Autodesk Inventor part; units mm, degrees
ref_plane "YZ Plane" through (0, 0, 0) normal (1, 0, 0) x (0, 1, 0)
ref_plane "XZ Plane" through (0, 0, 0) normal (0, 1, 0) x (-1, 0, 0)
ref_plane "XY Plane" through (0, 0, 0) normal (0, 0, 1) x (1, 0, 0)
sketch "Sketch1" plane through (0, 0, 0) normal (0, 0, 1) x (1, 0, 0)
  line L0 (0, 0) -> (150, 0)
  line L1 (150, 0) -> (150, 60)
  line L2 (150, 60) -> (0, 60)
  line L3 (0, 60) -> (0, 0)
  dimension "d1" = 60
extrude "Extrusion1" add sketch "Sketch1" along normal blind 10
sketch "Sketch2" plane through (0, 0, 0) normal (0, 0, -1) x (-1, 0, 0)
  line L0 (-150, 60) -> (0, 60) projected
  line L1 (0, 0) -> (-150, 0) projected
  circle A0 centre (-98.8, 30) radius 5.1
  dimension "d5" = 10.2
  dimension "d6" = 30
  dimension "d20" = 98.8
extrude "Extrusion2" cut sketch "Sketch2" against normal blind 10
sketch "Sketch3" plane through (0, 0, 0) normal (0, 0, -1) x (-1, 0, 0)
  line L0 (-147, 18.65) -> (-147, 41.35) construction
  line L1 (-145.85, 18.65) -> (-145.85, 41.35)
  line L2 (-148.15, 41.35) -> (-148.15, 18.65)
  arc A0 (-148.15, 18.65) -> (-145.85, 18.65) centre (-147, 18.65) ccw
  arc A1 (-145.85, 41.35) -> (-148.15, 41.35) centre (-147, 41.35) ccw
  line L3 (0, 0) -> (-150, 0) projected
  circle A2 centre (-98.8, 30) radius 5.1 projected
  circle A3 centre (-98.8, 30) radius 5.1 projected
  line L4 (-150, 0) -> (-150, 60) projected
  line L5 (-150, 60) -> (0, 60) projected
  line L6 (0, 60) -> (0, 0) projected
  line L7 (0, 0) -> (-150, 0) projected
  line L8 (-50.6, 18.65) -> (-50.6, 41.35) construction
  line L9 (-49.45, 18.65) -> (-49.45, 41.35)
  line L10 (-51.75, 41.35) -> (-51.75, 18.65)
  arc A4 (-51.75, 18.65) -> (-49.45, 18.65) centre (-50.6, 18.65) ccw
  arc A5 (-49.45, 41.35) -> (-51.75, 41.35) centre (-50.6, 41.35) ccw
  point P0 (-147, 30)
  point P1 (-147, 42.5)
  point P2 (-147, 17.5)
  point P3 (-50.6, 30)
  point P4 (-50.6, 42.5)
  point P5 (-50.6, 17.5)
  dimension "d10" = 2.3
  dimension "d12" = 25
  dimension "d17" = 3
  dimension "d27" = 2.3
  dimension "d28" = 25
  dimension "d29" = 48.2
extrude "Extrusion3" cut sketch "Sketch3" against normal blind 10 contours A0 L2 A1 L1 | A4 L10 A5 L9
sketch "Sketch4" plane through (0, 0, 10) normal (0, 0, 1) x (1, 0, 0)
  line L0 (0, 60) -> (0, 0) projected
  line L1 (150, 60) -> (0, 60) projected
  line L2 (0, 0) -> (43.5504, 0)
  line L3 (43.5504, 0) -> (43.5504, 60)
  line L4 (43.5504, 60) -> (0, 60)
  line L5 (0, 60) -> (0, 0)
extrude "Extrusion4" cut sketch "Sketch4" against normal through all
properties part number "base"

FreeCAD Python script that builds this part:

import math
import FreeCAD as App
import Part
import Sketcher

V = App.Vector

doc = App.newDocument("Part")
body = doc.addObject("PartDesign::Body", "Body")

# Sketch on XY plane
sketch1 = doc.addObject("Sketcher::SketchObject", "Sketch")
body.addObject(sketch1)
sketch1.AttachmentSupport = (doc.XY_Plane, [""])
sketch1.MapMode = "FlatFace"
sketch1.addGeometry(Part.LineSegment(V(0, 60, 0), V(0, 0, 0)), False)
sketch1.addGeometry(Part.LineSegment(V(0, 0, 0), V(150, 0, 0)), False)
sketch1.addGeometry(Part.LineSegment(V(150, 0, 0), V(150, 60, 0)), False)
sketch1.addGeometry(Part.LineSegment(V(150, 60, 0), V(0, 60, 0)), False)
sketch1.addConstraint(Sketcher.Constraint("Coincident", 0, 2, 1, 1))
sketch1.addConstraint(Sketcher.Constraint("Coincident", 1, 2, 2, 1))
sketch1.addConstraint(Sketcher.Constraint("Coincident", 2, 2, 3, 1))
sketch1.addConstraint(Sketcher.Constraint("Coincident", 3, 2, 0, 1))
sketch1.addConstraint(Sketcher.Constraint("Vertical", 0))
sketch1.addConstraint(Sketcher.Constraint("Horizontal", 1))
sketch1.addConstraint(Sketcher.Constraint("Vertical", 2))
sketch1.addConstraint(Sketcher.Constraint("Horizontal", 3))
sketch1.addConstraint(Sketcher.Constraint("Coincident", 0, 2, -1, 1))
sketch1.addConstraint(Sketcher.Constraint("DistanceY", 0, 2, 0, 1, 60.0))
sketch1.addConstraint(Sketcher.Constraint("DistanceX", 1, 1, 1, 2, 150.0))
pad1 = doc.addObject("PartDesign::Pad", "Pad")
body.addObject(pad1)
pad1.Profile = sketch1
pad1.Length = 10

# Sketch on XY plane
sketch2 = doc.addObject("Sketcher::SketchObject", "Sketch001")
body.addObject(sketch2)
sketch2.AttachmentSupport = (doc.XY_Plane, [""])
sketch2.MapMode = "FlatFace"
sketch2.addGeometry(Part.Circle(V(98.8, 30, 0), V(0, 0, 1), 5.1), False)
sketch2.addConstraint(Sketcher.Constraint("Diameter", 0, 10.2))
sketch2.addConstraint(Sketcher.Constraint("DistanceY", -1, 1, 0, 3, 30.0))
sketch2.addConstraint(Sketcher.Constraint("DistanceX", -1, 1, 0, 3, 98.8))
pocket1 = doc.addObject("PartDesign::Pocket", "Pocket")
body.addObject(pocket1)
pocket1.Profile = sketch2
pocket1.Length = 10
pocket1.Reversed = True

# Sketch on XY plane
sketch3 = doc.addObject("Sketcher::SketchObject", "Sketch002")
body.addObject(sketch3)
sketch3.AttachmentSupport = (doc.XY_Plane, [""])
sketch3.MapMode = "FlatFace"
sketch3.addGeometry(Part.ArcOfCircle(Part.Circle(V(147, 18.65, 0), V(0, 0, 1), 1.15), math.radians(180), math.radians(360)), False)
sketch3.addGeometry(Part.LineSegment(V(145.85, 18.65, 0), V(145.85, 41.35, 0)), False)
sketch3.addGeometry(Part.ArcOfCircle(Part.Circle(V(147, 41.35, 0), V(0, 0, 1), 1.15), math.radians(0), math.radians(180)), False)
sketch3.addGeometry(Part.LineSegment(V(148.15, 41.35, 0), V(148.15, 18.65, 0)), False)
sketch3.addGeometry(Part.ArcOfCircle(Part.Circle(V(50.6, 18.65, 0), V(0, 0, 1), 1.15), math.radians(180), math.radians(360)), False)
sketch3.addGeometry(Part.LineSegment(V(49.45, 18.65, 0), V(49.45, 41.35, 0)), False)
sketch3.addGeometry(Part.ArcOfCircle(Part.Circle(V(50.6, 41.35, 0), V(0, 0, 1), 1.15), math.radians(0), math.radians(180)), False)
sketch3.addGeometry(Part.LineSegment(V(51.75, 41.35, 0), V(51.75, 18.65, 0)), False)
sketch3.addConstraint(Sketcher.Constraint("Tangent", 0, 1, 1, 1))
sketch3.addConstraint(Sketcher.Constraint("Tangent", 1, 2, 2, 2))
sketch3.addConstraint(Sketcher.Constraint("Tangent", 2, 1, 3, 1))
sketch3.addConstraint(Sketcher.Constraint("Tangent", 3, 2, 0, 2))
sketch3.addConstraint(Sketcher.Constraint("Tangent", 4, 1, 5, 1))
sketch3.addConstraint(Sketcher.Constraint("Tangent", 5, 2, 6, 2))
sketch3.addConstraint(Sketcher.Constraint("Tangent", 6, 1, 7, 1))
sketch3.addConstraint(Sketcher.Constraint("Tangent", 7, 2, 4, 2))
sketch3.addConstraint(Sketcher.Constraint("Vertical", 1))
sketch3.addConstraint(Sketcher.Constraint("Vertical", 3))
sketch3.addConstraint(Sketcher.Constraint("Vertical", 5))
sketch3.addConstraint(Sketcher.Constraint("Vertical", 7))
sketch3.addConstraint(Sketcher.Constraint("Equal", 2, 4))
sketch3.addConstraint(Sketcher.Constraint("Horizontal", 0, 3, 4, 3))
sketch3.addConstraint(Sketcher.Constraint("Horizontal", 2, 3, 6, 3))
sketch3.addConstraint(Sketcher.Constraint("Radius", 0, 1.15))
sketch3.addConstraint(Sketcher.Constraint("DistanceY", 1, 1, 1, 2, 22.7))
sketch3.addConstraint(Sketcher.Constraint("DistanceX", -1, 1, 0, 3, 147.0))
sketch3.addConstraint(Sketcher.Constraint("DistanceX", -1, 1, 4, 3, 50.6))
sketch3.addConstraint(Sketcher.Constraint("DistanceY", -1, 1, 0, 3, 18.65))
pocket2 = doc.addObject("PartDesign::Pocket", "Pocket001")
body.addObject(pocket2)
pocket2.Profile = sketch3
pocket2.Length = 10
pocket2.Reversed = True

# Sketch on XY plane
sketch4 = doc.addObject("Sketcher::SketchObject", "Sketch003")
body.addObject(sketch4)
sketch4.AttachmentSupport = (doc.XY_Plane, [""])
sketch4.MapMode = "FlatFace"
sketch4.AttachmentOffset = App.Placement(V(0, 0, 10), App.Rotation())
sketch4.addGeometry(Part.LineSegment(V(43.5504, 60, 0), V(0, 60, 0)), False)
sketch4.addGeometry(Part.LineSegment(V(0, 60, 0), V(0, 0, 0)), False)
sketch4.addGeometry(Part.LineSegment(V(0, 0, 0), V(43.5504, 0, 0)), False)
sketch4.addGeometry(Part.LineSegment(V(43.5504, 0, 0), V(43.5504, 60, 0)), False)
sketch4.addConstraint(Sketcher.Constraint("Coincident", 0, 2, 1, 1))
sketch4.addConstraint(Sketcher.Constraint("Coincident", 1, 2, 2, 1))
sketch4.addConstraint(Sketcher.Constraint("Coincident", 2, 2, 3, 1))
sketch4.addConstraint(Sketcher.Constraint("Coincident", 3, 2, 0, 1))
sketch4.addConstraint(Sketcher.Constraint("Horizontal", 0))
sketch4.addConstraint(Sketcher.Constraint("Vertical", 1))
sketch4.addConstraint(Sketcher.Constraint("Horizontal", 2))
sketch4.addConstraint(Sketcher.Constraint("Vertical", 3))
sketch4.addConstraint(Sketcher.Constraint("Coincident", 1, 2, -1, 1))
sketch4.addConstraint(Sketcher.Constraint("DistanceY", 1, 2, 1, 1, 60.0))
sketch4.addConstraint(Sketcher.Constraint("DistanceX", 0, 2, 0, 1, 43.5504))
pocket3 = doc.addObject("PartDesign::Pocket", "Pocket002")
body.addObject(pocket3)
pocket3.Profile = sketch4
pocket3.Type = "ThroughAll"

doc.recompute()
